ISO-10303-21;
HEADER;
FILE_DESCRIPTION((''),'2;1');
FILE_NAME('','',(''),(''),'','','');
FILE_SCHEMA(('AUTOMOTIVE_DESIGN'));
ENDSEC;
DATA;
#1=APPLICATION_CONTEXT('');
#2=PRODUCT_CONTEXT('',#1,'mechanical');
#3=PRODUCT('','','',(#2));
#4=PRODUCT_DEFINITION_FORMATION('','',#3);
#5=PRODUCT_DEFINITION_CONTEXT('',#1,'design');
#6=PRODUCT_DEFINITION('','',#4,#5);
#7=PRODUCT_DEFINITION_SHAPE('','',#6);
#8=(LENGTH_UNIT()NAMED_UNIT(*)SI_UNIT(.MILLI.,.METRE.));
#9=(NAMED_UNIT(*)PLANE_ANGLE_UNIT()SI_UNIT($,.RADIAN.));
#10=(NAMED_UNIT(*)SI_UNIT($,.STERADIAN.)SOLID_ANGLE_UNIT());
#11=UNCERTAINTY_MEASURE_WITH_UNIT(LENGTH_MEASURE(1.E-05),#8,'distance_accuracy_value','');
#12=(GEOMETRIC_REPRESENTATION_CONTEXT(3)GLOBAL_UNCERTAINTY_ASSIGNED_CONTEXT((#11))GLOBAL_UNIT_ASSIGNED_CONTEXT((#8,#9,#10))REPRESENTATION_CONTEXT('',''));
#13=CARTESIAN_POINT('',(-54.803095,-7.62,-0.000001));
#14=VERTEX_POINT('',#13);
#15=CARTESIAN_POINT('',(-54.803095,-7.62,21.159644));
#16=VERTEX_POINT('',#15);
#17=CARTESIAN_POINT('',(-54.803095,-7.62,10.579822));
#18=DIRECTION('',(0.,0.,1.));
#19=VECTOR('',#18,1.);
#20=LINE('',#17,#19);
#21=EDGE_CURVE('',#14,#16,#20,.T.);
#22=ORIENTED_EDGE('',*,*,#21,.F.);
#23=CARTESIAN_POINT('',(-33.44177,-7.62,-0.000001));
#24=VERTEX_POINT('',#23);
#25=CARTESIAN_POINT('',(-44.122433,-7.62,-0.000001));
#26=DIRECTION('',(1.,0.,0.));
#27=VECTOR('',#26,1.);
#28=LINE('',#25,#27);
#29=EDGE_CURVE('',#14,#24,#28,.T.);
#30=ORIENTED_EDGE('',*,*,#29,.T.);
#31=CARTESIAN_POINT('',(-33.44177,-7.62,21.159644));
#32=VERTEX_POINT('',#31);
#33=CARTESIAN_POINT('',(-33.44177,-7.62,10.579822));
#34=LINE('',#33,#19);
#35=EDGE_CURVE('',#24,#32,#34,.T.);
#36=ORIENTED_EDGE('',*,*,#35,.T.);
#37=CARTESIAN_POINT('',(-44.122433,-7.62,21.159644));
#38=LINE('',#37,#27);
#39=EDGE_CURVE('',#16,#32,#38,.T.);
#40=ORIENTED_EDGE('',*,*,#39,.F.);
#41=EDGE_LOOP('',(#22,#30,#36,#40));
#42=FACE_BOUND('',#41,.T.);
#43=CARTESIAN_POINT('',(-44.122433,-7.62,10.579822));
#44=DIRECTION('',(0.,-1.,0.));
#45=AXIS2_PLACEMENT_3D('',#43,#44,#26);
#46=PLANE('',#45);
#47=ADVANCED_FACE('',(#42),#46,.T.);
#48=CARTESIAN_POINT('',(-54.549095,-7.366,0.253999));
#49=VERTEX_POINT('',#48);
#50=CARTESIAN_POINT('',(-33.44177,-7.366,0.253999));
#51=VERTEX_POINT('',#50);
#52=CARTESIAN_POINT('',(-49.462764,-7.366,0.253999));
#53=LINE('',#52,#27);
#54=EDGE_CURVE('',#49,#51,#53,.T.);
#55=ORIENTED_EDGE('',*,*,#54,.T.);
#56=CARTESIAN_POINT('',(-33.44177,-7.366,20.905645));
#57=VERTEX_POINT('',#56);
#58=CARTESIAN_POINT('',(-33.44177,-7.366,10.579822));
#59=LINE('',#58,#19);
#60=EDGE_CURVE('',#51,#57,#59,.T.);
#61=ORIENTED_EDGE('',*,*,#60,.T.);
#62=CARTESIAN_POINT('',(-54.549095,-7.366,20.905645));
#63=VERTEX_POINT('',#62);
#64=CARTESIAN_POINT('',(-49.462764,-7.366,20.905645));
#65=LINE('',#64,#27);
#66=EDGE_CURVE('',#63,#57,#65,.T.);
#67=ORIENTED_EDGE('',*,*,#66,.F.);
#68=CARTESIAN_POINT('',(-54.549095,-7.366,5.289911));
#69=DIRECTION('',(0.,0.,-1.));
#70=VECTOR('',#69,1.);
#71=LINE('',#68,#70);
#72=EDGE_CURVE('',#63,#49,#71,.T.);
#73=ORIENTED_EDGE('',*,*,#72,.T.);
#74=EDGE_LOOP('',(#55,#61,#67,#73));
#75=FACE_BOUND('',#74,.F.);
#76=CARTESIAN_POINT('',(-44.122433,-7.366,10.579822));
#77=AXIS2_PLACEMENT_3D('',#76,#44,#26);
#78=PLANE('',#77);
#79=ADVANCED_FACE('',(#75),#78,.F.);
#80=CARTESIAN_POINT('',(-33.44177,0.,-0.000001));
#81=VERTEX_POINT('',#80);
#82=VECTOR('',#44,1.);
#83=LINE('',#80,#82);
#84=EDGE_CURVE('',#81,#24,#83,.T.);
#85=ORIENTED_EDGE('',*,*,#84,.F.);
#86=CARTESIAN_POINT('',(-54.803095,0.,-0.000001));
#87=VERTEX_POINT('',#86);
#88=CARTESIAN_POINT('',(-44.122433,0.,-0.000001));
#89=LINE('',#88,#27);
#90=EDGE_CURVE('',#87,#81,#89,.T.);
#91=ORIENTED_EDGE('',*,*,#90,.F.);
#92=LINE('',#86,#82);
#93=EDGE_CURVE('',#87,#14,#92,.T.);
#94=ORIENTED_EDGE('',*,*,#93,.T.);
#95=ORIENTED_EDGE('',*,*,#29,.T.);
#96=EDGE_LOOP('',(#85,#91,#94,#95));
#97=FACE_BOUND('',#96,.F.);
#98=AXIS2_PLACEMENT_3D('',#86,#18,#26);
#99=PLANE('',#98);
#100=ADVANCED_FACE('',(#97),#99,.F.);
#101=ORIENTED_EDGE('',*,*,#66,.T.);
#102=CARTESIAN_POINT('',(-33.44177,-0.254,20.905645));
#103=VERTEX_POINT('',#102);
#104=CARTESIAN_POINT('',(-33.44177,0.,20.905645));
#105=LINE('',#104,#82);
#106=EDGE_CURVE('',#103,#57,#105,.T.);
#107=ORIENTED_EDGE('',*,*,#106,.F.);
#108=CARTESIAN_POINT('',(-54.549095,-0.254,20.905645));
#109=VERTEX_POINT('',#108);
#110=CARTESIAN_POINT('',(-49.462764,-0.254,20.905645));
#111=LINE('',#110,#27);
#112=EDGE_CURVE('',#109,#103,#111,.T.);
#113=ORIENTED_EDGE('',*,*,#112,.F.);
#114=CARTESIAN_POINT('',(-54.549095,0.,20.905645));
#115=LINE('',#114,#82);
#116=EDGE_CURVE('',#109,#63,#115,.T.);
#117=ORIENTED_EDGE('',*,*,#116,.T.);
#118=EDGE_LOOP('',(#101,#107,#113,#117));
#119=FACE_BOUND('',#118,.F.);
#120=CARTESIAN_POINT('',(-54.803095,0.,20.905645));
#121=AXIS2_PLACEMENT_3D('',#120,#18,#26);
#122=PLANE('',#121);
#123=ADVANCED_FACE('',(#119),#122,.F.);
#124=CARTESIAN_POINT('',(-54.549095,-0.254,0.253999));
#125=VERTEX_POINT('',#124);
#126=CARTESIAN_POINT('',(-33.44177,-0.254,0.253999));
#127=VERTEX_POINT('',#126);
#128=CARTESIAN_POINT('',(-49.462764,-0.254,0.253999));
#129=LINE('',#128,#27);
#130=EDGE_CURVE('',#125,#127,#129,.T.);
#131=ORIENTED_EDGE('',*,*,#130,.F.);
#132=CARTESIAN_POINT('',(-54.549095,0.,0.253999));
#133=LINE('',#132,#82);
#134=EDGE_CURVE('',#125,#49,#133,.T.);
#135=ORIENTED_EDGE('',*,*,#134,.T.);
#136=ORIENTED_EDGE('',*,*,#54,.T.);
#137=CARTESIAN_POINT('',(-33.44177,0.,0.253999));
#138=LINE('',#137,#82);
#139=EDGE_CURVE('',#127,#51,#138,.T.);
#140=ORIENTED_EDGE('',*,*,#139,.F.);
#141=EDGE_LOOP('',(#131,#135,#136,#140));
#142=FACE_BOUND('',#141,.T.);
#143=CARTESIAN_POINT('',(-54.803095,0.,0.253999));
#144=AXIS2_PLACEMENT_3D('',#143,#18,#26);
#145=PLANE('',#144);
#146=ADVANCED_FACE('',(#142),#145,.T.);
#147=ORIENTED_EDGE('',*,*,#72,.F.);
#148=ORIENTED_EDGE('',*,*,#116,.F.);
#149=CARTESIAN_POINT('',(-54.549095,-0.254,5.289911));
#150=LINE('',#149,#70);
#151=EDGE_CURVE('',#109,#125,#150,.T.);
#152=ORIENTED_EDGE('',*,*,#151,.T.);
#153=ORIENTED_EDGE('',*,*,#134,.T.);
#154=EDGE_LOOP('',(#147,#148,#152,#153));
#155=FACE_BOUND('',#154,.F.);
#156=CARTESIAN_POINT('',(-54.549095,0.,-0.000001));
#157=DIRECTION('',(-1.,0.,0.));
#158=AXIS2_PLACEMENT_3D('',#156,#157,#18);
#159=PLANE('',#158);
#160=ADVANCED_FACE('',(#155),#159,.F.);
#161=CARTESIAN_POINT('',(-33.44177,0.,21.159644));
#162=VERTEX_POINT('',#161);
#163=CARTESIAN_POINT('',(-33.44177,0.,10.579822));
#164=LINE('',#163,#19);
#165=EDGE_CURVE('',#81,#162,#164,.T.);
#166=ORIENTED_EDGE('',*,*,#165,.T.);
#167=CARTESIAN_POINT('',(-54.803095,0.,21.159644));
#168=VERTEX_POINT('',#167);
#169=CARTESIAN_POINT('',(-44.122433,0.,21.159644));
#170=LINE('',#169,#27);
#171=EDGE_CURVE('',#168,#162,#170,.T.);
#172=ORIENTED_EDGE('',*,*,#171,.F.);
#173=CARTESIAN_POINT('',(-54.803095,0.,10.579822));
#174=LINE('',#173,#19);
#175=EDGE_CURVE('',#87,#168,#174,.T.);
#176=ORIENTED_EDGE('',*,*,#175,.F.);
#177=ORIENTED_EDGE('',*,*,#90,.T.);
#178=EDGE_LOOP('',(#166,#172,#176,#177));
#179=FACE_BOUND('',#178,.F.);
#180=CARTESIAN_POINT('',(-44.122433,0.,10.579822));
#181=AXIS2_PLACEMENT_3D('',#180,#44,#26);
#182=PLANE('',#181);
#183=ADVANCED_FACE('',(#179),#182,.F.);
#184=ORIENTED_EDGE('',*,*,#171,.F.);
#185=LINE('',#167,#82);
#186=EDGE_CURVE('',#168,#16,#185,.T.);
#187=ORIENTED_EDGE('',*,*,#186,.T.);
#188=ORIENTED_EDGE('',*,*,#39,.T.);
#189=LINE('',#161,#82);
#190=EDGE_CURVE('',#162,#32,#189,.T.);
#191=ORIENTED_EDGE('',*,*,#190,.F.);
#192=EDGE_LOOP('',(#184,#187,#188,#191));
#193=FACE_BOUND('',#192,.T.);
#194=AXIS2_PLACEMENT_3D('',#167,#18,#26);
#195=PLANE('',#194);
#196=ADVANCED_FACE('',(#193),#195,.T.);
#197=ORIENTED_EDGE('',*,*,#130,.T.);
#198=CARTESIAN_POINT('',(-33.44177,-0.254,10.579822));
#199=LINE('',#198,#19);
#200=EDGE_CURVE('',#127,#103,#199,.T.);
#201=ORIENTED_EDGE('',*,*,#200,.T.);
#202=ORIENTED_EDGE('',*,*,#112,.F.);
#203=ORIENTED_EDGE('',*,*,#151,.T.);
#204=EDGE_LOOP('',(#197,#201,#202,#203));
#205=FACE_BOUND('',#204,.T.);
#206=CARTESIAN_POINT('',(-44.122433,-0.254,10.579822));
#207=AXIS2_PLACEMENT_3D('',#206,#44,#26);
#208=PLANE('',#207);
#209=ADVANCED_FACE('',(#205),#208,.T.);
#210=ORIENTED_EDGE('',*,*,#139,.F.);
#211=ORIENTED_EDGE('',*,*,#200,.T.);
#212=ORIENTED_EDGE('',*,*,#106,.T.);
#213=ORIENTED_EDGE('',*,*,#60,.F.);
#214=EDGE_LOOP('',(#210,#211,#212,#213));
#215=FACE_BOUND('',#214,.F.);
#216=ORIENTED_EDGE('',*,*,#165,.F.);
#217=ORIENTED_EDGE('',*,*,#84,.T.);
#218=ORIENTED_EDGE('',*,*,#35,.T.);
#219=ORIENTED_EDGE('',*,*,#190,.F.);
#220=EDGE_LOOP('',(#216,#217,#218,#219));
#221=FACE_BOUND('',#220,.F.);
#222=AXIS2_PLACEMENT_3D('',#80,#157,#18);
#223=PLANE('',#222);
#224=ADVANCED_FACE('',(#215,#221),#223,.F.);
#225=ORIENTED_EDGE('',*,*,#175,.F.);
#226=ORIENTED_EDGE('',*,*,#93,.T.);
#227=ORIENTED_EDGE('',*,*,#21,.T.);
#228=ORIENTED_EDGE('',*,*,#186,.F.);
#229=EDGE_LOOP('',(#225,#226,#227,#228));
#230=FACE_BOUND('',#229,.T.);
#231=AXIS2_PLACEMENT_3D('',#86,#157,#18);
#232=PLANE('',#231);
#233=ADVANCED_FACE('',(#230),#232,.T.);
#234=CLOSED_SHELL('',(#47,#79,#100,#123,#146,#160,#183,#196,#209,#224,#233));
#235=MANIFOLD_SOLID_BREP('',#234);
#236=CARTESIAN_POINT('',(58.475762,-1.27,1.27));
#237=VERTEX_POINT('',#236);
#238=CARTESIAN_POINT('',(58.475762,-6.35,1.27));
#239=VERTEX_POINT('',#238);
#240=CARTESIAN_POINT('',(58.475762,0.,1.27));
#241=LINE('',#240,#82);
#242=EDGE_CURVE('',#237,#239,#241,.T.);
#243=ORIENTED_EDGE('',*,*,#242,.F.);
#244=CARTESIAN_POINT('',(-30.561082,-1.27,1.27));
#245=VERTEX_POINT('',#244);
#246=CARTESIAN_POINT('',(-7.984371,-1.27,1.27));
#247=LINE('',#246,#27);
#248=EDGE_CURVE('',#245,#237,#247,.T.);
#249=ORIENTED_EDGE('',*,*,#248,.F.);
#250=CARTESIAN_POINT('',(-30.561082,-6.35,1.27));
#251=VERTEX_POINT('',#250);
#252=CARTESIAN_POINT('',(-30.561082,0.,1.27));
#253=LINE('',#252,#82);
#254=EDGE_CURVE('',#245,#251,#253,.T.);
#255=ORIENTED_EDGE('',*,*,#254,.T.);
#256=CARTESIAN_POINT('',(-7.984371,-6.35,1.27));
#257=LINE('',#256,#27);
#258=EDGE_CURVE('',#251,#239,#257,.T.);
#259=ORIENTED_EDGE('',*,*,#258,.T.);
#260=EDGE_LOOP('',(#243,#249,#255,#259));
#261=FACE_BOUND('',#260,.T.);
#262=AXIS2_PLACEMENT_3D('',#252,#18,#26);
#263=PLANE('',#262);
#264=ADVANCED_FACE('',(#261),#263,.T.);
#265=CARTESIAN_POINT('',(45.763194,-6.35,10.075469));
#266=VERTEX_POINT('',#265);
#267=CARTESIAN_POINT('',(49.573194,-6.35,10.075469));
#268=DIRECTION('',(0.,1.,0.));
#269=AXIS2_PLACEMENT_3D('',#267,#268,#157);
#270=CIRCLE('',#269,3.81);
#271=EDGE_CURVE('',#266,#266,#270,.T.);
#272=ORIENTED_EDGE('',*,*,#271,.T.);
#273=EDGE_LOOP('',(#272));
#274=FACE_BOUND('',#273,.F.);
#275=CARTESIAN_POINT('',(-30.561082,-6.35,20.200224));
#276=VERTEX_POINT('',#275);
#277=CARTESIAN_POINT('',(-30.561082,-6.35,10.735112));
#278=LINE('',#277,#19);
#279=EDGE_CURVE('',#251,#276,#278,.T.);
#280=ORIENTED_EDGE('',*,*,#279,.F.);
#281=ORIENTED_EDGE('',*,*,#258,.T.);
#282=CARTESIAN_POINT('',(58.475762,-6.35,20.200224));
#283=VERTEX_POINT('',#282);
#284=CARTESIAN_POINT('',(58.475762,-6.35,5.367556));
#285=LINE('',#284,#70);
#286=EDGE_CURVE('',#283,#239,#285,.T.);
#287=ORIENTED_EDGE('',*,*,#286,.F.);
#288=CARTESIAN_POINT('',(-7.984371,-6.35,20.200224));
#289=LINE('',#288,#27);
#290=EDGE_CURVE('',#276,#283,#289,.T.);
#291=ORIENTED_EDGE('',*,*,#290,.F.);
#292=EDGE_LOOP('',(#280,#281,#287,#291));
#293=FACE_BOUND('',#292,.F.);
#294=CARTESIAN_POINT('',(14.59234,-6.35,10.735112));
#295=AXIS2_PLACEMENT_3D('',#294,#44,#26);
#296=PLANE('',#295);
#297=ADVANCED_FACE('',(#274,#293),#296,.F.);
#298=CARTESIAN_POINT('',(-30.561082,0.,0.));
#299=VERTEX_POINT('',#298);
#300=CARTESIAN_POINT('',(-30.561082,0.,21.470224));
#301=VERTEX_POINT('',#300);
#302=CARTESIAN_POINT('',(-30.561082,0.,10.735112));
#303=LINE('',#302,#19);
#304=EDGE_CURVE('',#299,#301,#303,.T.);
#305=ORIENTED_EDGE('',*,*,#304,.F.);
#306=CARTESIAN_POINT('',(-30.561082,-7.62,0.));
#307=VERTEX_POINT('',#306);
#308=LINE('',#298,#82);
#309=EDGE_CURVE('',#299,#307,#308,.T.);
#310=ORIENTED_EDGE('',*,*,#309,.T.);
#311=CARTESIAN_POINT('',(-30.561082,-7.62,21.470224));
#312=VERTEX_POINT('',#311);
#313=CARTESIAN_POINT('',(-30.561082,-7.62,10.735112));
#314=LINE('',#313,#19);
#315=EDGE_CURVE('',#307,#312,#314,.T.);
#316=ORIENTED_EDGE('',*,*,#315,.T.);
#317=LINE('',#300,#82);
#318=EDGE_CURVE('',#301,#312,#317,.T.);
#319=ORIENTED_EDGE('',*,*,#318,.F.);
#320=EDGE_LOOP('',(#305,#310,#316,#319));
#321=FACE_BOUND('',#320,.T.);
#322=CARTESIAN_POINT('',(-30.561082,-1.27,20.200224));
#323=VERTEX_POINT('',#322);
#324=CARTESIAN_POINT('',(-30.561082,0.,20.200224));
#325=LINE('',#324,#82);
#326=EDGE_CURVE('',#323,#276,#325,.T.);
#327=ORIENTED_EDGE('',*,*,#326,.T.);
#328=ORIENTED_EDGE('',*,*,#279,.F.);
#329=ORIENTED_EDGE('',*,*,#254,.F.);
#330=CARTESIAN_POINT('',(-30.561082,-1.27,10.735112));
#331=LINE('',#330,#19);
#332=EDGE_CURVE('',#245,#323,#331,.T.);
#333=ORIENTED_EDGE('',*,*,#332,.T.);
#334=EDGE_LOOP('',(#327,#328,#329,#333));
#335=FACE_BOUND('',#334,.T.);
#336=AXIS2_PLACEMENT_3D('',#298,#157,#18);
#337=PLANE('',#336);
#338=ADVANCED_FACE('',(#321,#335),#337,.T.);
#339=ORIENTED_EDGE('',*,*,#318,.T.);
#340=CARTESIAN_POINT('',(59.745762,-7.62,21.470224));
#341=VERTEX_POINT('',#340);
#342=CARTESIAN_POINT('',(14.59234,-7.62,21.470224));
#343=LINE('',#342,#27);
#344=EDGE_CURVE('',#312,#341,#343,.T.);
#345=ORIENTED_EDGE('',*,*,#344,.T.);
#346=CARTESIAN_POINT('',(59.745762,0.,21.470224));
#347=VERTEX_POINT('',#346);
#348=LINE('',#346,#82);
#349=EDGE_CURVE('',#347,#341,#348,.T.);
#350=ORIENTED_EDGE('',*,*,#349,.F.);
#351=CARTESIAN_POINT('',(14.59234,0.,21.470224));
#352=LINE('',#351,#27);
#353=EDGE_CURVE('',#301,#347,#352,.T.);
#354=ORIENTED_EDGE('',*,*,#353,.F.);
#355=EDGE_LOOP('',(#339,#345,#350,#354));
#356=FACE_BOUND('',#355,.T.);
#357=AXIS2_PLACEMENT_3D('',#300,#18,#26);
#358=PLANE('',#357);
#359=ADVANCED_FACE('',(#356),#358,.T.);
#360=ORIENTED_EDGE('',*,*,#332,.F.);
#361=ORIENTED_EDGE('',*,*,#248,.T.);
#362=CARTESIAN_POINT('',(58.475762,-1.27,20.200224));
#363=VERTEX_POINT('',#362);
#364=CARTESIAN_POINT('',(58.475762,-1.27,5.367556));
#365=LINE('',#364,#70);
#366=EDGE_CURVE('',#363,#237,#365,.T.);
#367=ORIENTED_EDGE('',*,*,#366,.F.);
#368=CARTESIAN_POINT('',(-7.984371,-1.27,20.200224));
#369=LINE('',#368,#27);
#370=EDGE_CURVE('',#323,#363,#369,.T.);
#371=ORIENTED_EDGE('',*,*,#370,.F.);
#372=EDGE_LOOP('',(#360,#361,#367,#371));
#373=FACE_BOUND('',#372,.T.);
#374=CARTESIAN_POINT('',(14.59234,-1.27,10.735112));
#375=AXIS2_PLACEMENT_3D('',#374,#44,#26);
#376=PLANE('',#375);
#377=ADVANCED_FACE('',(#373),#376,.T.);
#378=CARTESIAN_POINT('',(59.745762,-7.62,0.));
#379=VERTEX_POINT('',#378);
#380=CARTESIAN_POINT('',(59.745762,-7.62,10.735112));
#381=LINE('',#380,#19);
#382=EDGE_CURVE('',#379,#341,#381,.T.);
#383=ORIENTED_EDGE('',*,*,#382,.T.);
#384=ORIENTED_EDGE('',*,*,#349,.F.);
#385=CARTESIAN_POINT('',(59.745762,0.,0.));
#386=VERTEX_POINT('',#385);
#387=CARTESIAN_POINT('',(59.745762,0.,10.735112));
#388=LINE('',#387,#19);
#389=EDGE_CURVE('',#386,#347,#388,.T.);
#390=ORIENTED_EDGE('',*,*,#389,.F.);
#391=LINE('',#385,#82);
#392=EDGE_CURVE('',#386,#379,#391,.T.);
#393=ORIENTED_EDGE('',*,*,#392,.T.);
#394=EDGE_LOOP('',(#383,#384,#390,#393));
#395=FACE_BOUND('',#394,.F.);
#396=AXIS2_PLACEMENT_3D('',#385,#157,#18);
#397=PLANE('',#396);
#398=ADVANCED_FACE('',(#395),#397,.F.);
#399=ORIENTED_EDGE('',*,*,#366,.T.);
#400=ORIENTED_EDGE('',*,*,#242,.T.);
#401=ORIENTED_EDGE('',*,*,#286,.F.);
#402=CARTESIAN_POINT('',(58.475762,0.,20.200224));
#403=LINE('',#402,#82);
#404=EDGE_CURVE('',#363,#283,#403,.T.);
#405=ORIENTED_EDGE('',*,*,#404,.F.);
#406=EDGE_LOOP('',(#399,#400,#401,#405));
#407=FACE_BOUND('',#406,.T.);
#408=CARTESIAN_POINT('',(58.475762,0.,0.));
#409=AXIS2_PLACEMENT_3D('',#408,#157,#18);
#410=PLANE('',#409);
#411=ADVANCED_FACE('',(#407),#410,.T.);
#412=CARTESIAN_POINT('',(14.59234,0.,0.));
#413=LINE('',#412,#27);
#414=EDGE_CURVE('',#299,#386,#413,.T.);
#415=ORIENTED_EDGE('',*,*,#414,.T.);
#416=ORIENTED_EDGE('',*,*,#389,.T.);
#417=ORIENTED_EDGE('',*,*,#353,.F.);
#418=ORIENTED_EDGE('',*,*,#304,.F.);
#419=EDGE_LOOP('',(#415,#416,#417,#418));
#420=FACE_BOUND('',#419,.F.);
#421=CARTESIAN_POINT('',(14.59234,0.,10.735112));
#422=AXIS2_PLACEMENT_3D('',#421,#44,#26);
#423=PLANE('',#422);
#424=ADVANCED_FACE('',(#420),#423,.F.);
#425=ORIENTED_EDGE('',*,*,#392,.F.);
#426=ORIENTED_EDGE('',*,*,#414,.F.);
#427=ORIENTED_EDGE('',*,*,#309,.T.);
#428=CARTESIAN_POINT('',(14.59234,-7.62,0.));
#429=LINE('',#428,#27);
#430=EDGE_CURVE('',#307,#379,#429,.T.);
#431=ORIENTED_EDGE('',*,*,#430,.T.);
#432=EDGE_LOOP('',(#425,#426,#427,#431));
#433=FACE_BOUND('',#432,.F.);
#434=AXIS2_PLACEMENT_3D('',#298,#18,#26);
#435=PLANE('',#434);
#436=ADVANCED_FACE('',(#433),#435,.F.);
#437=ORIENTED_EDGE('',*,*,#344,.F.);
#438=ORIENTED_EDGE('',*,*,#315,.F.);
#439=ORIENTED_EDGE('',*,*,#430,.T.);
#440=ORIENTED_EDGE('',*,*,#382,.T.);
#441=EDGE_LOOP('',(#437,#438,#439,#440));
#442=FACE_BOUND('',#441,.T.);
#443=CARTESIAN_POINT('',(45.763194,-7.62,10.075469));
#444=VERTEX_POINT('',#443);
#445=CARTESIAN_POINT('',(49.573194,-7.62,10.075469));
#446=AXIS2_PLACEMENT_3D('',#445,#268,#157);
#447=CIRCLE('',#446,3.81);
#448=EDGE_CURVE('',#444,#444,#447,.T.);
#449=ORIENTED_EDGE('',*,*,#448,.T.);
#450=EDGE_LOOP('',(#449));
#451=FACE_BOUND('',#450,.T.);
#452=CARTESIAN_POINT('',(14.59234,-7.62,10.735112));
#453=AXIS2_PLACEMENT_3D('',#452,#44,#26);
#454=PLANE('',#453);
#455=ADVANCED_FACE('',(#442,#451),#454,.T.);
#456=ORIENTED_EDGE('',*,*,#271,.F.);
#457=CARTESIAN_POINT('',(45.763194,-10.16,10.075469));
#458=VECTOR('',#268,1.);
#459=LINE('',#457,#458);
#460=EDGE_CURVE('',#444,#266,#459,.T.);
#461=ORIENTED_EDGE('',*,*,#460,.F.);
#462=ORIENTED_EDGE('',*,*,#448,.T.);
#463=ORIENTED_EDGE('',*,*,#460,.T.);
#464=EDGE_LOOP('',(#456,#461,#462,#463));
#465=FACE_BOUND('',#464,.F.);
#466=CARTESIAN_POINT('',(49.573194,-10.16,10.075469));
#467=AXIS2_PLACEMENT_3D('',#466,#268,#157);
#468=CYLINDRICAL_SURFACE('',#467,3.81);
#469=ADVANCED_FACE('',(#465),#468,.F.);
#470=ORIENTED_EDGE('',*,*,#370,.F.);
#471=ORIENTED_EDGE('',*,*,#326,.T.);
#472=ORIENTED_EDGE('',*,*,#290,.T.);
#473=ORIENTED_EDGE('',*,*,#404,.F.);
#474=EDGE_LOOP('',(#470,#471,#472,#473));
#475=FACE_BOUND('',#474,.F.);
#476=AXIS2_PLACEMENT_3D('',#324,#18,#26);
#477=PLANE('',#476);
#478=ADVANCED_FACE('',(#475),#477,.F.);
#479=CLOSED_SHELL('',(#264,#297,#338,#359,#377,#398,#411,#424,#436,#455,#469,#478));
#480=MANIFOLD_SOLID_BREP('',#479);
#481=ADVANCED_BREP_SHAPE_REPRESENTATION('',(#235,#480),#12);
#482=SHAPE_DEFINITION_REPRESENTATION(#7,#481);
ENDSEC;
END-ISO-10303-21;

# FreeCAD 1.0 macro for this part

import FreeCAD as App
import Part
import Sketcher
from FreeCAD import Vector
Q = App.Units.Quantity


def faces_at(feature, points):
    """Names of the faces that lie closest to the given points."""
    faces = feature.Shape.Faces
    near = lambda p: min(range(len(faces)), key=lambda i: faces[i].distToShape(Part.Vertex(*p))[0])
    return sorted({f"Face{near(p) + 1}" for p in points})

doc = App.newDocument("Part")
body = doc.addObject("PartDesign::Body", "Body")

sketch1 = body.newObject("Sketcher::SketchObject", "Sketch")
sketch1.AttachmentSupport = (doc.getObject("XZ_Plane"), [""])
sketch1.MapMode = "FlatFace"
sketch1.addGeometry([
    Part.LineSegment(Vector(-31, 21, 0), Vector(-31, 0, 0)),
    Part.LineSegment(Vector(-31, 0, 0), Vector(60, 0, 0)),
    Part.LineSegment(Vector(60, 0, 0), Vector(60, 21, 0)),
    Part.LineSegment(Vector(60, 21, 0), Vector(-31, 21, 0)),
], False)
sketch1.addConstraint([
    Sketcher.Constraint("Coincident", 0, 2, 1, 1),
    Sketcher.Constraint("Coincident", 1, 2, 2, 1),
    Sketcher.Constraint("Coincident", 2, 2, 3, 1),
    Sketcher.Constraint("Coincident", 3, 2, 0, 1),
    Sketcher.Constraint("Vertical", 0),
    Sketcher.Constraint("Horizontal", 1),
    Sketcher.Constraint("Vertical", 2),
    Sketcher.Constraint("Horizontal", 3),
    Sketcher.Constraint("PointOnObject", 0, 2, -1),
    Sketcher.Constraint("DistanceX", 1, 1, 1, 2, 90.306844),
    Sketcher.Constraint("DistanceY", 0, 2, 0, 1, 21.470224),
    Sketcher.Constraint("DistanceX", 0, 2, -1, 1, 30.561082),
])
pad1 = body.newObject("PartDesign::Pad", "Pad")
pad1.Profile = sketch1
pad1.Length = Q("0.3 in")
doc.recompute()

thickness = body.newObject("PartDesign::Thickness", "Thickness")
thickness.Base = (pad1, faces_at(pad1, [(-30.561, -3.81, 10.735)]))
thickness.Value = Q("0.05 in")
thickness.Reversed = True
thickness.Join = "Arc"

sketch2 = body.newObject("Sketcher::SketchObject", "Sketch001")
sketch2.AttachmentSupport = (doc.getObject("XZ_Plane"), [""])
sketch2.MapMode = "FlatFace"
sketch2.AttachmentOffset = App.Placement(Vector(0, 0, 0.3 * 25.4), App.Rotation())
sketch2.addGeometry(Part.Circle(Vector(49.6, 10.1, 0), Vector(0, 0, 1), 3.8), False)
sketch2.addConstraint([
    Sketcher.Constraint("Diameter", 0, Q("0.3 in")),
    Sketcher.Constraint("DistanceY", -1, 1, 0, 3, 10.075469),
    Sketcher.Constraint("DistanceX", -1, 1, 0, 3, 49.573194),
])
doc.recompute()
hole = body.newObject("PartDesign::Hole", "Hole")
hole.Profile = sketch2
hole.ThreadType = "None"
hole.Diameter = Q("0.3 in")
hole.DepthType = "Dimension"
hole.Depth = Q("0.1 in")
hole.DrillPoint = "Flat"
body2 = doc.addObject("PartDesign::Body", "Body001")

sketch3 = body2.newObject("Sketcher::SketchObject", "Sketch002")
sketch3.AttachmentSupport = (doc.getObject("XZ_Plane001"), [""])
sketch3.MapMode = "FlatFace"
sketch3.addGeometry([
    Part.LineSegment(Vector(-55, 21, 0), Vector(-55, 0, 0)),
    Part.LineSegment(Vector(-55, 0, 0), Vector(-33, 0, 0)),
    Part.LineSegment(Vector(-33, 0, 0), Vector(-33, 21, 0)),
    Part.LineSegment(Vector(-33, 21, 0), Vector(-55, 21, 0)),
], False)
sketch3.addConstraint([
    Sketcher.Constraint("Coincident", 0, 2, 1, 1),
    Sketcher.Constraint("Coincident", 1, 2, 2, 1),
    Sketcher.Constraint("Coincident", 2, 2, 3, 1),
    Sketcher.Constraint("Coincident", 3, 2, 0, 1),
    Sketcher.Constraint("Vertical", 0),
    Sketcher.Constraint("Horizontal", 1),
    Sketcher.Constraint("Vertical", 2),
    Sketcher.Constraint("Horizontal", 3),
    Sketcher.Constraint("PointOnObject", 0, 2, -1),
    Sketcher.Constraint("DistanceX", 1, 1, 1, 2, 21.361325),
    Sketcher.Constraint("DistanceY", 0, 2, 0, 1, 21.159645),
    Sketcher.Constraint("DistanceX", 1, 2, -1, 1, 33.44177),
])
pad2 = body2.newObject("PartDesign::Pad", "Pad001")
pad2.Profile = sketch3
pad2.Length = Q("0.3 in")
doc.recompute()

thickness2 = body2.newObject("PartDesign::Thickness", "Thickness001")
thickness2.Base = (pad2, faces_at(pad2, [(-33.442, -3.81, 10.58)]))
thickness2.Value = Q("0.01 in")
thickness2.Reversed = True
thickness2.Join = "Arc"

doc.recompute()
